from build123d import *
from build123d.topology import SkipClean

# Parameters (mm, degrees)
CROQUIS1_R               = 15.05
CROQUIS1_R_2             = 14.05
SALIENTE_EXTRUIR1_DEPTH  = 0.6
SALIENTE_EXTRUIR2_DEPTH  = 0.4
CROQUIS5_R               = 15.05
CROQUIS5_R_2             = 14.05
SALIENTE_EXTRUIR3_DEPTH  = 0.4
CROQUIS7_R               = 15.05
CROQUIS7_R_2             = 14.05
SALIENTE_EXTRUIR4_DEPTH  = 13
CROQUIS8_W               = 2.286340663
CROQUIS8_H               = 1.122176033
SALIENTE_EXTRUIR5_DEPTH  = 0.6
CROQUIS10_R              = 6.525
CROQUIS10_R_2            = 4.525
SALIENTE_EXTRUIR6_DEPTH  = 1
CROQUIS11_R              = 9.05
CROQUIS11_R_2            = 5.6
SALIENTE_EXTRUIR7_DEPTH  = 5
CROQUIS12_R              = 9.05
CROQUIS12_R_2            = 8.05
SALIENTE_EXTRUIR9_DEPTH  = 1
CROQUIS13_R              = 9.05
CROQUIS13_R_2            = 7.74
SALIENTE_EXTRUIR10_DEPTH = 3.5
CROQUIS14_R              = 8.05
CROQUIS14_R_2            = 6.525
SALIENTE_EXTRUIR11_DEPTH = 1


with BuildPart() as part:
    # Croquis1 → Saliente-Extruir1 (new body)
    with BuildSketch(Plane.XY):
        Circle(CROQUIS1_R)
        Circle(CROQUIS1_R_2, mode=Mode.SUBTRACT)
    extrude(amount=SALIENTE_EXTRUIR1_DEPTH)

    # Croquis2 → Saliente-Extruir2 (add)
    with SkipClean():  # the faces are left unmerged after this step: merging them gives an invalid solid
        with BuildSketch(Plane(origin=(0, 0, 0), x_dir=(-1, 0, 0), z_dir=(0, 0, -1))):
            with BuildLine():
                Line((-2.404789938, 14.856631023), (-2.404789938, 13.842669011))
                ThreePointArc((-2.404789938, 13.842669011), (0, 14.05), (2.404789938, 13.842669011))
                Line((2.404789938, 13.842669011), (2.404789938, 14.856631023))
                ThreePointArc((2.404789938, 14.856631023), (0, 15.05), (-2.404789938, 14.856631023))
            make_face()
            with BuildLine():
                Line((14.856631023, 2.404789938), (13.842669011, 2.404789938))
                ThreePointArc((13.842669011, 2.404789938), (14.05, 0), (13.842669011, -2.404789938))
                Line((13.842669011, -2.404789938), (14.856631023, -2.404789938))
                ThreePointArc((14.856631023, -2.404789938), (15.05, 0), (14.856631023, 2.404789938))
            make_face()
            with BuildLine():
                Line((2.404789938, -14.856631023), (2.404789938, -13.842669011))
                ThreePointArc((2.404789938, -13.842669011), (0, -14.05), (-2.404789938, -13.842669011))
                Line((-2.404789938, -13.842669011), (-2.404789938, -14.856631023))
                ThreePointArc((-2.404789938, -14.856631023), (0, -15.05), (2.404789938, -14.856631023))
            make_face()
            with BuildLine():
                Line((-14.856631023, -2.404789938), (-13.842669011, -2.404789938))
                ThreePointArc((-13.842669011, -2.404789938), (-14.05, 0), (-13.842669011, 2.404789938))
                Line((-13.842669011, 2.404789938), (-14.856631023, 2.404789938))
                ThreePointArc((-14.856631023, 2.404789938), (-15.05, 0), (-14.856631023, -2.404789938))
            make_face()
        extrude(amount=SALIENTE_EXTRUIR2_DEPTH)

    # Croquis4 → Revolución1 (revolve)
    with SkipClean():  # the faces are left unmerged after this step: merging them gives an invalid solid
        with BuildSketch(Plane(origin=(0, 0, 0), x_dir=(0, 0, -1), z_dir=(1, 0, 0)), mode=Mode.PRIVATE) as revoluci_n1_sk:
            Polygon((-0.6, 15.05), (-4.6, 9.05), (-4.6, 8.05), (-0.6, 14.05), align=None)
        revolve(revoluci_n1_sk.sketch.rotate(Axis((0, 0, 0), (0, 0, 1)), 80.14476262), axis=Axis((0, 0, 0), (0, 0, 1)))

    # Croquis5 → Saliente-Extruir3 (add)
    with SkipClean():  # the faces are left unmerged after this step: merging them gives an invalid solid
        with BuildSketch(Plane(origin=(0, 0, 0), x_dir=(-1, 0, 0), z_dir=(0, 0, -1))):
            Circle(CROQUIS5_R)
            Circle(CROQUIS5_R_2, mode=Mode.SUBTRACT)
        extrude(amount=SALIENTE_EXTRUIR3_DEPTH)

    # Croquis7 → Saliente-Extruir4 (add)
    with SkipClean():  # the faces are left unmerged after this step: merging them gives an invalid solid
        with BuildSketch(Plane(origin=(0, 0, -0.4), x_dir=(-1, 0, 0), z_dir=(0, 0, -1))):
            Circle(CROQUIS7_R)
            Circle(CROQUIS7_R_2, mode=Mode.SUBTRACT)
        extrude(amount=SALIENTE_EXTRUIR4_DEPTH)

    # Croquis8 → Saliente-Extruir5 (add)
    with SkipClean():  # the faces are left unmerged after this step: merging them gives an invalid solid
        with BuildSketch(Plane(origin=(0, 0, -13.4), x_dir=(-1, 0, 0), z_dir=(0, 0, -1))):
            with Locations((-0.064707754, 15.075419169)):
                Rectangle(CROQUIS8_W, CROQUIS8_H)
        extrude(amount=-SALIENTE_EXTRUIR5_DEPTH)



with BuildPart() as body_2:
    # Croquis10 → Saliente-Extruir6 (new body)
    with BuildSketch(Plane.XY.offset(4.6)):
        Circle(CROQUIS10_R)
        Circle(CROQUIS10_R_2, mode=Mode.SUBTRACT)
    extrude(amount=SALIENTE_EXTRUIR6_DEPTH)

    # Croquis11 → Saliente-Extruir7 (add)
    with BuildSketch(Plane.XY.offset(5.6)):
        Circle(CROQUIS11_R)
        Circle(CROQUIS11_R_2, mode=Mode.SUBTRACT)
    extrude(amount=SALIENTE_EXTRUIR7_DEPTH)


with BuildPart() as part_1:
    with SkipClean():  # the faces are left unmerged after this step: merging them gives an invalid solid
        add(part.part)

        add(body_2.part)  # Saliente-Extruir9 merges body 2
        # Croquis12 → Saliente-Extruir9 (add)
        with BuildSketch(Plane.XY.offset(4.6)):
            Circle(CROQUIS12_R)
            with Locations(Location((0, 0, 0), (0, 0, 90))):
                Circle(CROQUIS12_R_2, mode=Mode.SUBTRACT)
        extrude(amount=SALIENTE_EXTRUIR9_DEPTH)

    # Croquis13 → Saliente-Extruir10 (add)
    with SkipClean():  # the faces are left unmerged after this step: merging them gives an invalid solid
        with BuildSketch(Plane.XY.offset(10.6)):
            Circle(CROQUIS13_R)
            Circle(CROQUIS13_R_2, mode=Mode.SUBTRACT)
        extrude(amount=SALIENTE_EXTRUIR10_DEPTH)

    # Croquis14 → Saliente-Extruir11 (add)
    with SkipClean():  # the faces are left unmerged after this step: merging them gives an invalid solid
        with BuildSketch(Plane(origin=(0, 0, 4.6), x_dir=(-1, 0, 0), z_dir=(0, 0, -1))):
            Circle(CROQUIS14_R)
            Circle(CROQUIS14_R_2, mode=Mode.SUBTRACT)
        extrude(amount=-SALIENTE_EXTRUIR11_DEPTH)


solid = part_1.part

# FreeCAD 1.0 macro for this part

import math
import FreeCAD as App
import Part
import Sketcher
from FreeCAD import Vector

doc = App.newDocument("Part")
params = doc.addObject("Spreadsheet::Sheet", "Params")
for row, (alias, value) in enumerate([
    ("sketch1_diameter", "30.1 mm"),
    ("sketch1_diameter2", "28.1 mm"),
    ("pad1_length", "0.6 mm"),
    ("sketch2_radius", "14.05 mm"),
    ("sketch2_radius2", "15.05 mm"),
    ("pad2_length", "0.4 mm"),
    ("sketch3_width", "1 mm"),
    ("revolution_angle", "360 deg"),
    ("sketch4_diameter", "30.1 mm"),
    ("sketch4_diameter2", "28.1 mm"),
    ("pad3_length", "0.4 mm"),
    ("sketch5_diameter", "30.1 mm"),
    ("sketch5_diameter2", "28.1 mm"),
    ("pad4_length", "13 mm"),
    ("pad5_length", "0.6 mm"),
    ("sketch7_diameter", "13.05 mm"),
    ("sketch7_diameter2", "9.05 mm"),
    ("pad6_length", "1 mm"),
    ("sketch8_diameter", "18.1 mm"),
    ("sketch8_diameter2", "11.2 mm"),
    ("pad7_length", "5 mm"),
    ("sketch9_diameter", "18.1 mm"),
    ("sketch9_diameter2", "16.1 mm"),
    ("pad8_length", "1 mm"),
    ("sketch10_diameter", "18.1 mm"),
    ("sketch10_diameter2", "15.48 mm"),
    ("pad9_length", "3.5 mm"),
    ("sketch11_diameter", "16.1 mm"),
    ("sketch11_diameter2", "13.05 mm"),
    ("pad10_length", "1 mm"),
], start=1):
    params.set(f"A{row}", alias)
    params.set(f"B{row}", "=" + value)
    params.setAlias(f"B{row}", alias)

body = doc.addObject("PartDesign::Body", "Body")

# Sketch on XY plane
sketch1 = body.newObject("Sketcher::SketchObject", "Sketch")
sketch1.AttachmentSupport = (doc.getObject("XY_Plane"), [""])
sketch1.MapMode = "FlatFace"
sketch1.addGeometry([
    Part.Circle(Vector(0, 0, 0), Vector(0, 0, 1), 15),
    Part.Circle(Vector(0, 0, 0), Vector(0, 0, 1), 14),
], False)
sketch1.addConstraint([
    Sketcher.Constraint("Coincident", 0, 3, -1, 1),
    Sketcher.Constraint("Coincident", 1, 3, -1, 1),
    Sketcher.Constraint("Diameter", 0, 30.1),
    Sketcher.Constraint("Diameter", 1, 28.1),
])
sketch1.setExpression("Constraints[2]", "Params.sketch1_diameter")
sketch1.setExpression("Constraints[3]", "Params.sketch1_diameter2")
pad1 = body.newObject("PartDesign::Pad", "Pad")
pad1.Profile = sketch1
pad1.setExpression("Length", "Params.pad1_length")

# Sketch on XY plane
sketch2 = body.newObject("Sketcher::SketchObject", "Sketch001")
sketch2.AttachmentSupport = (doc.getObject("XY_Plane"), [""])
sketch2.MapMode = "FlatFace"
sketch2.addGeometry([
    Part.LineSegment(Vector(2.4, 14.9, 0), Vector(2.4, 13.8, 0)),  # 0
    Part.ArcOfCircle(Part.Circle(Vector(0, 0, 0), Vector(0, 0, 1), 14), math.radians(80.14), math.radians(99.86)),  # 1
    Part.LineSegment(Vector(-2.4, 13.8, 0), Vector(-2.4, 14.9, 0)),  # 2
    Part.ArcOfCircle(Part.Circle(Vector(0, 0, 0), Vector(0, 0, 1), 15), math.radians(80.81), math.radians(99.19)),  # 3
    Part.LineSegment(Vector(-14.9, 2.4, 0), Vector(-13.8, 2.4, 0)),  # 4
    Part.ArcOfCircle(Part.Circle(Vector(0, 0, 0), Vector(0, 0, 1), 14), math.radians(170.14), math.radians(189.86)),  # 5
    Part.LineSegment(Vector(-13.8, -2.4, 0), Vector(-14.9, -2.4, 0)),  # 6
    Part.ArcOfCircle(Part.Circle(Vector(0, 0, 0), Vector(0, 0, 1), 15), math.radians(170.81), math.radians(189.19)),  # 7
    Part.LineSegment(Vector(-2.4, -14.9, 0), Vector(-2.4, -13.8, 0)),  # 8
    Part.ArcOfCircle(Part.Circle(Vector(0, 0, 0), Vector(0, 0, 1), 14), math.radians(-99.86), math.radians(-80.14)),  # 9
    Part.LineSegment(Vector(2.4, -13.8, 0), Vector(2.4, -14.9, 0)),  # 10
    Part.ArcOfCircle(Part.Circle(Vector(0, 0, 0), Vector(0, 0, 1), 15), math.radians(-99.19), math.radians(-80.81)),  # 11
    Part.LineSegment(Vector(14.9, -2.4, 0), Vector(13.8, -2.4, 0)),  # 12
    Part.ArcOfCircle(Part.Circle(Vector(0, 0, 0), Vector(0, 0, 1), 14), math.radians(-9.86), math.radians(9.86)),  # 13
    Part.LineSegment(Vector(13.8, 2.4, 0), Vector(14.9, 2.4, 0)),  # 14
    Part.ArcOfCircle(Part.Circle(Vector(0, 0, 0), Vector(0, 0, 1), 15), math.radians(-9.19), math.radians(9.19)),  # 15
], False)
sketch2.addConstraint([
    Sketcher.Constraint("Coincident", 0, 2, 1, 1),
    Sketcher.Constraint("Coincident", 1, 2, 2, 1),
    Sketcher.Constraint("Coincident", 2, 2, 3, 2),
    Sketcher.Constraint("Coincident", 3, 1, 0, 1),
    Sketcher.Constraint("Coincident", 4, 2, 5, 1),
    Sketcher.Constraint("Coincident", 5, 2, 6, 1),
    Sketcher.Constraint("Coincident", 6, 2, 7, 2),
    Sketcher.Constraint("Coincident", 7, 1, 4, 1),
    Sketcher.Constraint("Coincident", 8, 2, 9, 1),
    Sketcher.Constraint("Coincident", 9, 2, 10, 1),
    Sketcher.Constraint("Coincident", 10, 2, 11, 2),
    Sketcher.Constraint("Coincident", 11, 1, 8, 1),
    Sketcher.Constraint("Coincident", 12, 2, 13, 1),
    Sketcher.Constraint("Coincident", 13, 2, 14, 1),
    Sketcher.Constraint("Coincident", 14, 2, 15, 2),
    Sketcher.Constraint("Coincident", 15, 1, 12, 1),
    Sketcher.Constraint("Vertical", 0),
    Sketcher.Constraint("Vertical", 2),
    Sketcher.Constraint("Horizontal", 4),
    Sketcher.Constraint("Horizontal", 6),
    Sketcher.Constraint("Vertical", 8),
    Sketcher.Constraint("Vertical", 10),
    Sketcher.Constraint("Horizontal", 12),
    Sketcher.Constraint("Horizontal", 14),
    Sketcher.Constraint("Coincident", 1, 3, -1, 1),
    Sketcher.Constraint("Coincident", 3, 3, -1, 1),
    Sketcher.Constraint("Coincident", 5, 3, -1, 1),
    Sketcher.Constraint("Coincident", 7, 3, -1, 1),
    Sketcher.Constraint("Coincident", 9, 3, -1, 1),
    Sketcher.Constraint("Coincident", 11, 3, -1, 1),
    Sketcher.Constraint("Coincident", 13, 3, -1, 1),
    Sketcher.Constraint("Coincident", 15, 3, -1, 1),
    Sketcher.Constraint("Equal", 1, 5),
    Sketcher.Constraint("Equal", 3, 7),
    Sketcher.Constraint("Equal", 5, 9),
    Sketcher.Constraint("Equal", 7, 11),
    Sketcher.Constraint("Equal", 9, 13),
    Sketcher.Constraint("Equal", 11, 15),
    Sketcher.Constraint("Horizontal", 0, 2, 1, 2),
    Sketcher.Constraint("Horizontal", 8, 2, 9, 2),
    Sketcher.Constraint("Horizontal", 6, 2, 12, 2),
    Sketcher.Constraint("Horizontal", 7, 1, 13, 2),
    Sketcher.Constraint("Vertical", 4, 2, 5, 2),
    Sketcher.Constraint("Vertical", 2, 2, 8, 2),
    Sketcher.Constraint("Equal", 14, 0),
    Sketcher.Constraint("Radius", 1, 14.05),
    Sketcher.Constraint("Radius", 3, 15.05),
    Sketcher.Constraint("DistanceX", 4, 1, 4, 2, 1.013962),
])
sketch2.setExpression("Constraints[45]", "Params.sketch2_radius")
sketch2.setExpression("Constraints[46]", "Params.sketch2_radius2")
pad2 = body.newObject("PartDesign::Pad", "Pad001")
pad2.Profile = sketch2
pad2.setExpression("Length", "Params.pad2_length")
pad2.Reversed = True

# Sketch on YZ plane
sketch3 = body.newObject("Sketcher::SketchObject", "Sketch002")
sketch3.AttachmentSupport = (doc.getObject("YZ_Plane"), [""])
sketch3.MapMode = "FlatFace"
sketch3.addGeometry([
    Part.LineSegment(Vector(15.1, 0.6, 0), Vector(9.1, 4.6, 0)),
    Part.LineSegment(Vector(9.1, 4.6, 0), Vector(8.1, 4.6, 0)),
    Part.LineSegment(Vector(8.1, 4.6, 0), Vector(14.1, 0.6, 0)),
    Part.LineSegment(Vector(14.1, 0.6, 0), Vector(15.1, 0.6, 0)),
], False)
sketch3.addConstraint([
    Sketcher.Constraint("Coincident", 0, 2, 1, 1),
    Sketcher.Constraint("Coincident", 1, 2, 2, 1),
    Sketcher.Constraint("Coincident", 2, 2, 3, 1),
    Sketcher.Constraint("Coincident", 3, 2, 0, 1),
    Sketcher.Constraint("Horizontal", 1),
    Sketcher.Constraint("Horizontal", 3),
    Sketcher.Constraint("Parallel", 0, 2),
    Sketcher.Constraint("DistanceX", 1, 2, 1, 1, 1.0),
    Sketcher.Constraint("DistanceX", 0, 2, 2, 2, 5.0),
    Sketcher.Constraint("DistanceY", 2, 2, 0, 2, 4.0),
    Sketcher.Constraint("DistanceY", -1, 1, 0, 2, 4.6),
    Sketcher.Constraint("DistanceX", -1, 1, 0, 2, 9.05),
])
sketch3.setExpression("Constraints[7]", "Params.sketch3_width")
revolution = body.newObject("PartDesign::Revolution", "Revolution")
revolution.Profile = sketch3
revolution.ReferenceAxis = (sketch3, ["V_Axis"])
revolution.setExpression("Angle", "Params.revolution_angle")

# Sketch on XY plane
sketch4 = body.newObject("Sketcher::SketchObject", "Sketch003")
sketch4.AttachmentSupport = (doc.getObject("XY_Plane"), [""])
sketch4.MapMode = "FlatFace"
sketch4.addGeometry([
    Part.Circle(Vector(0, 0, 0), Vector(0, 0, 1), 15),
    Part.Circle(Vector(0, 0, 0), Vector(0, 0, 1), 14),
], False)
sketch4.addConstraint([
    Sketcher.Constraint("Coincident", 0, 3, -1, 1),
    Sketcher.Constraint("Coincident", 1, 3, -1, 1),
    Sketcher.Constraint("Diameter", 0, 30.1),
    Sketcher.Constraint("Diameter", 1, 28.1),
])
sketch4.setExpression("Constraints[2]", "Params.sketch4_diameter")
sketch4.setExpression("Constraints[3]", "Params.sketch4_diameter2")
pad3 = body.newObject("PartDesign::Pad", "Pad002")
pad3.Profile = sketch4
pad3.setExpression("Length", "Params.pad3_length")
pad3.Reversed = True

# Sketch on XY plane
sketch5 = body.newObject("Sketcher::SketchObject", "Sketch004")
sketch5.AttachmentSupport = (doc.getObject("XY_Plane"), [""])
sketch5.MapMode = "FlatFace"
sketch5.AttachmentOffset = App.Placement(Vector(0, 0, -0.4), App.Rotation())
sketch5.addGeometry([
    Part.Circle(Vector(0, 0, 0), Vector(0, 0, 1), 15),
    Part.Circle(Vector(0, 0, 0), Vector(0, 0, 1), 14),
], False)
sketch5.addConstraint([
    Sketcher.Constraint("Coincident", 0, 3, -1, 1),
    Sketcher.Constraint("Coincident", 1, 3, -1, 1),
    Sketcher.Constraint("Diameter", 0, 30.1),
    Sketcher.Constraint("Diameter", 1, 28.1),
])
sketch5.setExpression("Constraints[2]", "Params.sketch5_diameter")
sketch5.setExpression("Constraints[3]", "Params.sketch5_diameter2")
pad4 = body.newObject("PartDesign::Pad", "Pad003")
pad4.Profile = sketch5
pad4.setExpression("Length", "Params.pad4_length")
pad4.Reversed = True

# Sketch on XY plane
sketch6 = body.newObject("Sketcher::SketchObject", "Sketch005")
sketch6.AttachmentSupport = (doc.getObject("XY_Plane"), [""])
sketch6.MapMode = "FlatFace"
sketch6.AttachmentOffset = App.Placement(Vector(0, 0, -13.4), App.Rotation())
sketch6.addGeometry([
    Part.LineSegment(Vector(1.2, 15.6, 0), Vector(1.2, 14.5, 0)),
    Part.LineSegment(Vector(1.2, 14.5, 0), Vector(-1.1, 14.5, 0)),
    Part.LineSegment(Vector(-1.1, 14.5, 0), Vector(-1.1, 15.6, 0)),
    Part.LineSegment(Vector(-1.1, 15.6, 0), Vector(1.2, 15.6, 0)),
], False)
sketch6.addConstraint([
    Sketcher.Constraint("Coincident", 0, 2, 1, 1),
    Sketcher.Constraint("Coincident", 1, 2, 2, 1),
    Sketcher.Constraint("Coincident", 2, 2, 3, 1),
    Sketcher.Constraint("Coincident", 3, 2, 0, 1),
    Sketcher.Constraint("Vertical", 0),
    Sketcher.Constraint("Horizontal", 1),
    Sketcher.Constraint("Vertical", 2),
    Sketcher.Constraint("Horizontal", 3),
    Sketcher.Constraint("DistanceX", 1, 2, 1, 1, 2.286341),
    Sketcher.Constraint("DistanceY", 0, 2, 0, 1, 1.122176),
    Sketcher.Constraint("DistanceX", -1, 1, 0, 2, 1.207878),
    Sketcher.Constraint("DistanceY", -1, 1, 0, 2, 14.514331),
])
pad5 = body.newObject("PartDesign::Pad", "Pad004")
pad5.Profile = sketch6
pad5.setExpression("Length", "Params.pad5_length")
body2 = doc.addObject("PartDesign::Body", "Body001")

# Sketch on XY plane
sketch7 = body2.newObject("Sketcher::SketchObject", "Sketch006")
sketch7.AttachmentSupport = (doc.getObject("XY_Plane001"), [""])
sketch7.MapMode = "FlatFace"
sketch7.AttachmentOffset = App.Placement(Vector(0, 0, 4.6), App.Rotation())
sketch7.addGeometry([
    Part.Circle(Vector(0, 0, 0), Vector(0, 0, 1), 6.5),
    Part.Circle(Vector(0, 0, 0), Vector(0, 0, 1), 4.5),
], False)
sketch7.addConstraint([
    Sketcher.Constraint("Coincident", 0, 3, -1, 1),
    Sketcher.Constraint("Coincident", 1, 3, -1, 1),
    Sketcher.Constraint("Diameter", 0, 13.05),
    Sketcher.Constraint("Diameter", 1, 9.05),
])
sketch7.setExpression("Constraints[2]", "Params.sketch7_diameter")
sketch7.setExpression("Constraints[3]", "Params.sketch7_diameter2")
pad6 = body2.newObject("PartDesign::Pad", "Pad005")
pad6.Profile = sketch7
pad6.setExpression("Length", "Params.pad6_length")

# Sketch on XY plane
sketch8 = body2.newObject("Sketcher::SketchObject", "Sketch007")
sketch8.AttachmentSupport = (doc.getObject("XY_Plane001"), [""])
sketch8.MapMode = "FlatFace"
sketch8.AttachmentOffset = App.Placement(Vector(0, 0, 5.6), App.Rotation())
sketch8.addGeometry([
    Part.Circle(Vector(0, 0, 0), Vector(0, 0, 1), 9),
    Part.Circle(Vector(0, 0, 0), Vector(0, 0, 1), 6),
], False)
sketch8.addConstraint([
    Sketcher.Constraint("Coincident", 0, 3, -1, 1),
    Sketcher.Constraint("Coincident", 1, 3, -1, 1),
    Sketcher.Constraint("Diameter", 0, 18.1),
    Sketcher.Constraint("Diameter", 1, 11.2),
])
sketch8.setExpression("Constraints[2]", "Params.sketch8_diameter")
sketch8.setExpression("Constraints[3]", "Params.sketch8_diameter2")
pad7 = body2.newObject("PartDesign::Pad", "Pad006")
pad7.Profile = sketch8
pad7.setExpression("Length", "Params.pad7_length")
body.AllowCompound = True
doc.recompute()

boolean = body.newObject("PartDesign::Boolean", "Boolean")
boolean.Type = "Fuse"
boolean.addObjects([body2])

# Sketch on XY plane
sketch9 = body.newObject("Sketcher::SketchObject", "Sketch008")
sketch9.AttachmentSupport = (doc.getObject("XY_Plane"), [""])
sketch9.MapMode = "FlatFace"
sketch9.AttachmentOffset = App.Placement(Vector(0, 0, 4.6), App.Rotation())
sketch9.addGeometry([
    Part.Circle(Vector(0, 0, 0), Vector(0, 0, 1), 9),
    Part.Circle(Vector(0, 0, 0), Vector(0, 0, 1), 8),
], False)
sketch9.addConstraint([
    Sketcher.Constraint("Coincident", 0, 3, -1, 1),
    Sketcher.Constraint("Coincident", 1, 3, -1, 1),
    Sketcher.Constraint("Diameter", 0, 18.1),
    Sketcher.Constraint("Diameter", 1, 16.1),
])
sketch9.setExpression("Constraints[2]", "Params.sketch9_diameter")
sketch9.setExpression("Constraints[3]", "Params.sketch9_diameter2")
pad8 = body.newObject("PartDesign::Pad", "Pad007")
pad8.Profile = sketch9
pad8.setExpression("Length", "Params.pad8_length")

# Sketch on XY plane
sketch10 = body.newObject("Sketcher::SketchObject", "Sketch009")
sketch10.AttachmentSupport = (doc.getObject("XY_Plane"), [""])
sketch10.MapMode = "FlatFace"
sketch10.AttachmentOffset = App.Placement(Vector(0, 0, 10.6), App.Rotation())
sketch10.addGeometry([
    Part.Circle(Vector(0, 0, 0), Vector(0, 0, 1), 9),
    Part.Circle(Vector(0, 0, 0), Vector(0, 0, 1), 8),
], False)
sketch10.addConstraint([
    Sketcher.Constraint("Coincident", 0, 3, -1, 1),
    Sketcher.Constraint("Coincident", 1, 3, -1, 1),
    Sketcher.Constraint("Diameter", 0, 18.1),
    Sketcher.Constraint("Diameter", 1, 15.48),
])
sketch10.setExpression("Constraints[2]", "Params.sketch10_diameter")
sketch10.setExpression("Constraints[3]", "Params.sketch10_diameter2")
pad9 = body.newObject("PartDesign::Pad", "Pad008")
pad9.Profile = sketch10
pad9.setExpression("Length", "Params.pad9_length")

# Sketch on XY plane
sketch11 = body.newObject("Sketcher::SketchObject", "Sketch010")
sketch11.AttachmentSupport = (doc.getObject("XY_Plane"), [""])
sketch11.MapMode = "FlatFace"
sketch11.AttachmentOffset = App.Placement(Vector(0, 0, 4.6), App.Rotation())
sketch11.addGeometry([
    Part.Circle(Vector(0, 0, 0), Vector(0, 0, 1), 8),
    Part.Circle(Vector(0, 0, 0), Vector(0, 0, 1), 7),
], False)
sketch11.addConstraint([
    Sketcher.Constraint("Coincident", 0, 3, -1, 1),
    Sketcher.Constraint("Coincident", 1, 3, -1, 1),
    Sketcher.Constraint("Diameter", 0, 16.1),
    Sketcher.Constraint("Diameter", 1, 13.05),
])
sketch11.setExpression("Constraints[2]", "Params.sketch11_diameter")
sketch11.setExpression("Constraints[3]", "Params.sketch11_diameter2")
pad10 = body.newObject("PartDesign::Pad", "Pad009")
pad10.Profile = sketch11
pad10.setExpression("Length", "Params.pad10_length")

doc.recompute()
